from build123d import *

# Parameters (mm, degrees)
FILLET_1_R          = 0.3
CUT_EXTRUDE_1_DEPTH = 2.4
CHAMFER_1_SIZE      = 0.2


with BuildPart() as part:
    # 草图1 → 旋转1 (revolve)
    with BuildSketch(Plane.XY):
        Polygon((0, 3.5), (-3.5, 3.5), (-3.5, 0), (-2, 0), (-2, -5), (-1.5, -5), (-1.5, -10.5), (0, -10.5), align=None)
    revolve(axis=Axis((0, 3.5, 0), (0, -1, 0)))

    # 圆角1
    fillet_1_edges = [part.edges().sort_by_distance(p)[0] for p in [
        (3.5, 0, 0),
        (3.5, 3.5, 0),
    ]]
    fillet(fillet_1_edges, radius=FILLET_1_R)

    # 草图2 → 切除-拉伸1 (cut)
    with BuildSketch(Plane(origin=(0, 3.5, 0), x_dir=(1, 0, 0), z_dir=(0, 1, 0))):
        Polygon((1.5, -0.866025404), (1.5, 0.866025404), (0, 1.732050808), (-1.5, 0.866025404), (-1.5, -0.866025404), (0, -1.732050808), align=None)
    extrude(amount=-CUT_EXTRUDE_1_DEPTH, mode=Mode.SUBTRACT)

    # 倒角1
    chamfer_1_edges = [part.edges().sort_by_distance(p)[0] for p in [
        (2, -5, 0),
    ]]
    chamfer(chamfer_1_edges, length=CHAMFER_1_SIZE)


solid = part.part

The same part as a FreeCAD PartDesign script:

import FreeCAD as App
import Part
import Sketcher

V = App.Vector
Q = App.Units.Quantity


def edges_at(feature, points):
    """Names of the edges that pass closest to the given points."""
    edges = feature.Shape.Edges
    near = lambda p: min(range(len(edges)), key=lambda i: edges[i].distToShape(Part.Vertex(*p))[0])
    return sorted({f"Edge{near(p) + 1}" for p in points})

doc = App.newDocument("Part")
body = doc.addObject("PartDesign::Body", "Body")

# Sketch on XY plane
sketch1 = doc.addObject("Sketcher::SketchObject", "Sketch")
body.addObject(sketch1)
sketch1.AttachmentSupport = (doc.XY_Plane, [""])
sketch1.MapMode = "FlatFace"
sketch1.addGeometry(Part.LineSegment(V(0, 3.5, 0), V(-3.5, 3.5, 0)), False)
sketch1.addGeometry(Part.LineSegment(V(-3.5, 3.5, 0), V(-3.5, 0, 0)), False)
sketch1.addGeometry(Part.LineSegment(V(-3.5, 0, 0), V(-2, 0, 0)), False)
sketch1.addGeometry(Part.LineSegment(V(-2, 0, 0), V(-2, -5, 0)), False)
sketch1.addGeometry(Part.LineSegment(V(-2, -5, 0), V(-1.5, -5, 0)), False)
sketch1.addGeometry(Part.LineSegment(V(-1.5, -5, 0), V(-1.5, -10.5, 0)), False)
sketch1.addGeometry(Part.LineSegment(V(-1.5, -10.5, 0), V(0, -10.5, 0)), False)
sketch1.addGeometry(Part.LineSegment(V(0, -10.5, 0), V(0, 3.5, 0)), False)
sketch1.addConstraint(Sketcher.Constraint("Coincident", 0, 2, 1, 1))
sketch1.addConstraint(Sketcher.Constraint("Coincident", 1, 2, 2, 1))
sketch1.addConstraint(Sketcher.Constraint("Coincident", 2, 2, 3, 1))
sketch1.addConstraint(Sketcher.Constraint("Coincident", 3, 2, 4, 1))
sketch1.addConstraint(Sketcher.Constraint("Coincident", 4, 2, 5, 1))
sketch1.addConstraint(Sketcher.Constraint("Coincident", 5, 2, 6, 1))
sketch1.addConstraint(Sketcher.Constraint("Coincident", 6, 2, 7, 1))
sketch1.addConstraint(Sketcher.Constraint("Coincident", 7, 2, 0, 1))
sketch1.addConstraint(Sketcher.Constraint("Horizontal", 0))
sketch1.addConstraint(Sketcher.Constraint("Vertical", 1))
sketch1.addConstraint(Sketcher.Constraint("Horizontal", 2))
sketch1.addConstraint(Sketcher.Constraint("Vertical", 3))
sketch1.addConstraint(Sketcher.Constraint("Horizontal", 4))
sketch1.addConstraint(Sketcher.Constraint("Vertical", 5))
sketch1.addConstraint(Sketcher.Constraint("Horizontal", 6))
sketch1.addConstraint(Sketcher.Constraint("Vertical", 7))
sketch1.addConstraint(Sketcher.Constraint("PointOnObject", 1, 2, -1))
sketch1.addConstraint(Sketcher.Constraint("PointOnObject", 6, 2, -2))
sketch1.addConstraint(Sketcher.Constraint("Equal", 2, 6))
sketch1.addConstraint(Sketcher.Constraint("Equal", 0, 1))
sketch1.addConstraint(Sketcher.Constraint("DistanceY", 3, 2, 3, 1, 5.0))
sketch1.addConstraint(Sketcher.Constraint("DistanceY", 7, 1, 7, 2, 14.0))
sketch1.addConstraint(Sketcher.Constraint("DistanceX", 0, 2, 0, 1, 3.5))
sketch1.addConstraint(Sketcher.Constraint("DistanceX", 2, 1, 2, 2, 1.5))
revolution = doc.addObject("PartDesign::Revolution", "Revolution")
body.addObject(revolution)
revolution.Profile = sketch1
revolution.ReferenceAxis = (sketch1, ["V_Axis"])
revolution.Angle = 360
doc.recompute()

fillet = doc.addObject("PartDesign::Fillet", "Fillet")
body.addObject(fillet)
fillet.Base = (revolution, edges_at(revolution, [(3.5, 0, 0), (3.5, 3.5, 0)]))
fillet.Radius = 0.3

# Sketch on XZ plane
sketch2 = doc.addObject("Sketcher::SketchObject", "Sketch001")
body.addObject(sketch2)
sketch2.AttachmentSupport = (doc.XZ_Plane, [""])
sketch2.MapMode = "FlatFace"
sketch2.AttachmentOffset = App.Placement(V(0, 0, -3.5), App.Rotation())
sketch2.addGeometry(Part.LineSegment(V(1.5, 0.9, 0), V(1.5, -0.9, 0)), False)
sketch2.addGeometry(Part.LineSegment(V(1.5, -0.9, 0), V(0, -1.7, 0)), False)
sketch2.addGeometry(Part.LineSegment(V(0, -1.7, 0), V(-1.5, -0.9, 0)), False)
sketch2.addGeometry(Part.LineSegment(V(-1.5, -0.9, 0), V(-1.5, 0.9, 0)), False)
sketch2.addGeometry(Part.LineSegment(V(-1.5, 0.9, 0), V(0, 1.7, 0)), False)
sketch2.addGeometry(Part.LineSegment(V(0, 1.7, 0), V(1.5, 0.9, 0)), False)
sketch2.addConstraint(Sketcher.Constraint("Coincident", 0, 2, 1, 1))
sketch2.addConstraint(Sketcher.Constraint("Coincident", 1, 2, 2, 1))
sketch2.addConstraint(Sketcher.Constraint("Coincident", 2, 2, 3, 1))
sketch2.addConstraint(Sketcher.Constraint("Coincident", 3, 2, 4, 1))
sketch2.addConstraint(Sketcher.Constraint("Coincident", 4, 2, 5, 1))
sketch2.addConstraint(Sketcher.Constraint("Coincident", 5, 2, 0, 1))
sketch2.addConstraint(Sketcher.Constraint("Vertical", 0))
sketch2.addConstraint(Sketcher.Constraint("Vertical", 3))
sketch2.addConstraint(Sketcher.Constraint("Symmetric", 0, 2, 3, 2, -1, 1))
sketch2.addConstraint(Sketcher.Constraint("Symmetric", 1, 2, 4, 2, -1, 1))
sketch2.addConstraint(Sketcher.Constraint("PointOnObject", 1, 2, -2))
sketch2.addConstraint(Sketcher.Constraint("Parallel", 2, 5))
sketch2.addConstraint(Sketcher.Constraint("Horizontal", 0, 2, 2, 2))
sketch2.addConstraint(Sketcher.Constraint("Angle", 1, Q("-150 deg")))
sketch2.addConstraint(Sketcher.Constraint("DistanceX", 2, 2, 0, 2, 3.0))
sketch2.addConstraint(Sketcher.Constraint("DistanceY", 0, 2, 0, 1, 1.732051))
pocket1 = doc.addObject("PartDesign::Pocket", "Pocket")
body.addObject(pocket1)
pocket1.Profile = sketch2
pocket1.Length = 2.4
pocket1.Reversed = True
doc.recompute()

chamfer = doc.addObject("PartDesign::Chamfer", "Chamfer")
body.addObject(chamfer)
chamfer.Base = (pocket1, edges_at(pocket1, [(2, -5, 0)]))
chamfer.Size = 0.2

doc.recompute()
